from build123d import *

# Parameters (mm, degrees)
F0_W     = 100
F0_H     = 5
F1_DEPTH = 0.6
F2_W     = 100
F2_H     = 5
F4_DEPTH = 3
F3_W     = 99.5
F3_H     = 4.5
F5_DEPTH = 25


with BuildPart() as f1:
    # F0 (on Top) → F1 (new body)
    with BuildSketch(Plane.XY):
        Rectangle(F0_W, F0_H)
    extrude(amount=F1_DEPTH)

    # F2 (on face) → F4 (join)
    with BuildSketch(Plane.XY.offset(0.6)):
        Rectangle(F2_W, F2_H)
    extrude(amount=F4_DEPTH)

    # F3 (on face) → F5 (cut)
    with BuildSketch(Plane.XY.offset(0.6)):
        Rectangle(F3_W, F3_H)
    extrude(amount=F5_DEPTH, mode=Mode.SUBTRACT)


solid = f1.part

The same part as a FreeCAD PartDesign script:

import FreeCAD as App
import Part
import Sketcher

V = App.Vector
Q = App.Units.Quantity


def add_polygon(sketch, points):
    """Adds a closed chain of lines whose ends are joined by coincident constraints."""
    first, n = sketch.GeometryCount, len(points)
    for a, b in zip(points, points[1:] + points[:1]):
        sketch.addGeometry(Part.LineSegment(App.Vector(*a, 0), App.Vector(*b, 0)), False)
    for i in range(n):
        sketch.addConstraint(Sketcher.Constraint("Coincident", first + i, 2, first + (i + 1) % n, 1))

doc = App.newDocument("Part")
body = doc.addObject("PartDesign::Body", "Body")

sketch1 = doc.addObject("Sketcher::SketchObject", "Sketch")
body.addObject(sketch1)
sketch1.AttachmentSupport = (doc.XY_Plane, [""])
sketch1.MapMode = "FlatFace"
add_polygon(sketch1, [(-50, 2), (-50, -2), (50, -2), (50, 2)])
sketch1.addConstraint(Sketcher.Constraint("Vertical", 0))
sketch1.addConstraint(Sketcher.Constraint("Horizontal", 1))
sketch1.addConstraint(Sketcher.Constraint("Vertical", 2))
sketch1.addConstraint(Sketcher.Constraint("Horizontal", 3))
sketch1.addConstraint(Sketcher.Constraint("Symmetric", 0, 2, 2, 2, -1, 1))
sketch1.addConstraint(Sketcher.Constraint("DistanceX", 1, 1, 1, 2, Q("100 mm")))
sketch1.addConstraint(Sketcher.Constraint("DistanceY", 0, 2, 0, 1, Q("5 mm")))
pad1 = doc.addObject("PartDesign::Pad", "Pad")
body.addObject(pad1)
pad1.Profile = sketch1
pad1.Length = 0.6

sketch2 = doc.addObject("Sketcher::SketchObject", "Sketch001")
body.addObject(sketch2)
sketch2.AttachmentSupport = (doc.XY_Plane, [""])
sketch2.MapMode = "FlatFace"
sketch2.AttachmentOffset = App.Placement(V(0, 0, 0.6), App.Rotation())
add_polygon(sketch2, [(-50, 2), (-50, -2), (50, -2), (50, 2)])
sketch2.addConstraint(Sketcher.Constraint("Vertical", 0))
sketch2.addConstraint(Sketcher.Constraint("Horizontal", 1))
sketch2.addConstraint(Sketcher.Constraint("Vertical", 2))
sketch2.addConstraint(Sketcher.Constraint("Horizontal", 3))
sketch2.addConstraint(Sketcher.Constraint("Symmetric", 0, 2, 2, 2, -1, 1))
sketch2.addConstraint(Sketcher.Constraint("DistanceX", 1, 1, 1, 2, Q("100 mm")))
sketch2.addConstraint(Sketcher.Constraint("DistanceY", 0, 2, 0, 1, Q("5 mm")))
pad2 = doc.addObject("PartDesign::Pad", "Pad001")
body.addObject(pad2)
pad2.Profile = sketch2
pad2.Length = 3

sketch3 = doc.addObject("Sketcher::SketchObject", "Sketch002")
body.addObject(sketch3)
sketch3.AttachmentSupport = (doc.XY_Plane, [""])
sketch3.MapMode = "FlatFace"
sketch3.AttachmentOffset = App.Placement(V(0, 0, 0.6), App.Rotation())
add_polygon(sketch3, [(-49.8, 2.2), (-49.8, -2.2), (49.8, -2.2), (49.8, 2.2)])
sketch3.addConstraint(Sketcher.Constraint("Vertical", 0))
sketch3.addConstraint(Sketcher.Constraint("Horizontal", 1))
sketch3.addConstraint(Sketcher.Constraint("Vertical", 2))
sketch3.addConstraint(Sketcher.Constraint("Horizontal", 3))
sketch3.addConstraint(Sketcher.Constraint("Symmetric", 0, 2, 2, 2, -1, 1))
sketch3.addConstraint(Sketcher.Constraint("DistanceX", 1, 1, 1, 2, Q("99.5 mm")))
sketch3.addConstraint(Sketcher.Constraint("DistanceY", 0, 2, 0, 1, Q("4.5 mm")))
pocket1 = doc.addObject("PartDesign::Pocket", "Pocket")
body.addObject(pocket1)
pocket1.Profile = sketch3
pocket1.Length = 25
pocket1.Reversed = True

doc.recompute()
